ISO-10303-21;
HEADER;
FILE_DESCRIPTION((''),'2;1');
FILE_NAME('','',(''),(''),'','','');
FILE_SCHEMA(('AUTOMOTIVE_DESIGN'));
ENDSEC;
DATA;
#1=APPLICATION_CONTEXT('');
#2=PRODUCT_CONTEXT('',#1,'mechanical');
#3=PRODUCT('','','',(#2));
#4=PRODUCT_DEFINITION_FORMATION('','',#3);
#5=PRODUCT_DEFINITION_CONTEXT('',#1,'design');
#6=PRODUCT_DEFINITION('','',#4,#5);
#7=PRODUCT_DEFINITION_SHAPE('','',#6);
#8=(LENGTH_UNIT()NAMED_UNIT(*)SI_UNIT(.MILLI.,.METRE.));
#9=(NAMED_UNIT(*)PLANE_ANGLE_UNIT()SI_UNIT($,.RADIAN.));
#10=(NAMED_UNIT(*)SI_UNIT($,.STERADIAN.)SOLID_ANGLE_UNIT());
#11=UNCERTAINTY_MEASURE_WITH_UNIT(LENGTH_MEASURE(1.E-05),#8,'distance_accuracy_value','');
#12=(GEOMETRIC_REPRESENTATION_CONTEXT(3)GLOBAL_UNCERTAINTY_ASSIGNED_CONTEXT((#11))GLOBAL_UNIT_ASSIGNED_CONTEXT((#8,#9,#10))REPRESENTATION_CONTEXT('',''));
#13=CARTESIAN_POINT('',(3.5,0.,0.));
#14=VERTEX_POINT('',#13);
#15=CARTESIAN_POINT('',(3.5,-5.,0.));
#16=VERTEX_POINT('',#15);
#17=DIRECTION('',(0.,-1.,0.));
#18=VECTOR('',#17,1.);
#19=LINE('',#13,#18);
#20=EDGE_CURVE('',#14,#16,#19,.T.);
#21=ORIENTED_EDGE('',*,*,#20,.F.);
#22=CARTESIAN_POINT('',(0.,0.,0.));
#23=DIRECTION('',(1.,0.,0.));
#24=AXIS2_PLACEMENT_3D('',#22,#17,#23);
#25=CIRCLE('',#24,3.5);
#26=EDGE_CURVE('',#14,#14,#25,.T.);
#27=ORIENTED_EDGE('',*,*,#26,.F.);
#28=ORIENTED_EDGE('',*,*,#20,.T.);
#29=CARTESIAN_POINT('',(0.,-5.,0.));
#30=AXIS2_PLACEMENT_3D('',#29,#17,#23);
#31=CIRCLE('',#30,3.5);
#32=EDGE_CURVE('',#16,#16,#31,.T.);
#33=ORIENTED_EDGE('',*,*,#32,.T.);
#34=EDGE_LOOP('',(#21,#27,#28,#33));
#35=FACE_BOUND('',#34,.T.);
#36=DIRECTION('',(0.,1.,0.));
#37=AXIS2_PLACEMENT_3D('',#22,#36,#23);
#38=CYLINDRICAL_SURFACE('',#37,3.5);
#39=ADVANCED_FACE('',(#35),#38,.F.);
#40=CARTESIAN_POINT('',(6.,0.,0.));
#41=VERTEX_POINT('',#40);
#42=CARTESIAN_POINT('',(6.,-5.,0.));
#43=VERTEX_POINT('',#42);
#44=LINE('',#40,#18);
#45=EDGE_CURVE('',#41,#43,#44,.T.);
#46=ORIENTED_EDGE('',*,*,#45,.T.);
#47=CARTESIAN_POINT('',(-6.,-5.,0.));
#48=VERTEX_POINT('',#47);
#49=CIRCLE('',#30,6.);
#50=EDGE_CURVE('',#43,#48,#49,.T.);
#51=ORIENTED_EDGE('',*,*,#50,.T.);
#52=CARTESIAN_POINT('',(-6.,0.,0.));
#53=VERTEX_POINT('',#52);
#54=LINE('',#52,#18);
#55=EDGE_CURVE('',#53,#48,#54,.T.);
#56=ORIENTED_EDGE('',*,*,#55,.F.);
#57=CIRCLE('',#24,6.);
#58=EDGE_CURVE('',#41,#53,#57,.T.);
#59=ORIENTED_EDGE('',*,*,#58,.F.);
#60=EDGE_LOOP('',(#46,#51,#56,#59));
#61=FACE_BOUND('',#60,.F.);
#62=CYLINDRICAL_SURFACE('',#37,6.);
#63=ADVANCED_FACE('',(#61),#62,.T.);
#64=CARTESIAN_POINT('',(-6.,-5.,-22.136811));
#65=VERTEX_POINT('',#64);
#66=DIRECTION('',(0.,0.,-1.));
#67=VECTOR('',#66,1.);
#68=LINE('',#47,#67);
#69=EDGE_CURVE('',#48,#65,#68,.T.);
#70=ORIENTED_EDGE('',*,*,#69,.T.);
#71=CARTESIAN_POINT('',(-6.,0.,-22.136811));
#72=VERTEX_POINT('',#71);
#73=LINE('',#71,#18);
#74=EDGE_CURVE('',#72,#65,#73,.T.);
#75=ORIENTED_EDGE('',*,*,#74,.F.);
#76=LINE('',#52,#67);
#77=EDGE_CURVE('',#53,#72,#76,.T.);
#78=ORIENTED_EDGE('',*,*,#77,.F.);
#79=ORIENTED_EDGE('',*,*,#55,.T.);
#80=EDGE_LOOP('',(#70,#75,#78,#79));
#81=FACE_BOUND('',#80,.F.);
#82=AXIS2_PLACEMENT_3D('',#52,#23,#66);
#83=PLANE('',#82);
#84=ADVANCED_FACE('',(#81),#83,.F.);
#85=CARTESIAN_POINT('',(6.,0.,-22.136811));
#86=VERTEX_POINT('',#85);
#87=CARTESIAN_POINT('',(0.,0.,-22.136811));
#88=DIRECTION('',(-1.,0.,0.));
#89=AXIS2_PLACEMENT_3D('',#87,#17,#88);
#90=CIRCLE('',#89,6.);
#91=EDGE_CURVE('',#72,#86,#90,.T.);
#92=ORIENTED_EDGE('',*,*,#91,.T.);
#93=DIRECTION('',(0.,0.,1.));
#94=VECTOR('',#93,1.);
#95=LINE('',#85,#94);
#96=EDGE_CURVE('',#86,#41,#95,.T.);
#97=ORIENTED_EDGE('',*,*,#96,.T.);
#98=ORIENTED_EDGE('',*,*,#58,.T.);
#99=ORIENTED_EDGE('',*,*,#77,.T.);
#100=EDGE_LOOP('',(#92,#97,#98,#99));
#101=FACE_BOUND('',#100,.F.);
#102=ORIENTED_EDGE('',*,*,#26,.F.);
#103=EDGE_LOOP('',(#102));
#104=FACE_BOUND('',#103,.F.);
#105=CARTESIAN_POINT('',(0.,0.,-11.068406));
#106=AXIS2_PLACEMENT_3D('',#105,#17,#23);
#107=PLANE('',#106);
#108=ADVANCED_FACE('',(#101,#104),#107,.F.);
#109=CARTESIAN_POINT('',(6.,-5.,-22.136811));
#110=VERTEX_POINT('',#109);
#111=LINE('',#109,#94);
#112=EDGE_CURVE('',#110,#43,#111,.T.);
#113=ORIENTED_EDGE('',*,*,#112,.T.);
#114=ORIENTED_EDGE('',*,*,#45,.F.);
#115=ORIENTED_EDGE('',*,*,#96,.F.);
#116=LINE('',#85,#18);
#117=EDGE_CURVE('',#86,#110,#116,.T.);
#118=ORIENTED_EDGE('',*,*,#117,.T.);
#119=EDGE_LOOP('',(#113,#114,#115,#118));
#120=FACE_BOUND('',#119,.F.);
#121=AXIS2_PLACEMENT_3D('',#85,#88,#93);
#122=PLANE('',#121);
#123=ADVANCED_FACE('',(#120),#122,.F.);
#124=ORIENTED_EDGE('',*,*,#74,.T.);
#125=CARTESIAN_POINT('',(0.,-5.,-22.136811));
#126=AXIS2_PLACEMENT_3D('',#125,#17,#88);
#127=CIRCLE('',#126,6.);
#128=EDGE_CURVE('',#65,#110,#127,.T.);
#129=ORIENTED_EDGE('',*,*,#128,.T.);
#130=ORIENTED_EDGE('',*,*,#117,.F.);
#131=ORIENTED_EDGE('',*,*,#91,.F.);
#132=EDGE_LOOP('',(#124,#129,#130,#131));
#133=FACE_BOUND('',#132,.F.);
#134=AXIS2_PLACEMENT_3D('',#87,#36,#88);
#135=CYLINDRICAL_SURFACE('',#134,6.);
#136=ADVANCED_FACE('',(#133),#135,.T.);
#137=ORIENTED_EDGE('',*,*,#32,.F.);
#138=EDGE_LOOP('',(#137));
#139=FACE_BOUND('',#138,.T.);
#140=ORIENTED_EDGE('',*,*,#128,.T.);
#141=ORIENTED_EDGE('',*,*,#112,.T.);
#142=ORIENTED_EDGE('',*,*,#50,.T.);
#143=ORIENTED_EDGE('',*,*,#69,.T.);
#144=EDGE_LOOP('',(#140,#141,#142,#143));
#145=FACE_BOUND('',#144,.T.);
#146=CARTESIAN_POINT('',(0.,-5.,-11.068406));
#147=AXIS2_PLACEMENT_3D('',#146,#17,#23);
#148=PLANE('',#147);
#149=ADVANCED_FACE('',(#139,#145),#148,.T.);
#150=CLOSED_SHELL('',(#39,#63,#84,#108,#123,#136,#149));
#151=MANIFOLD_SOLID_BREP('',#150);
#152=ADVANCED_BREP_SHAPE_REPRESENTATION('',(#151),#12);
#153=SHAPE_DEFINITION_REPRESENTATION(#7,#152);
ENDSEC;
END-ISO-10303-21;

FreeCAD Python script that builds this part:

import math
import FreeCAD as App
import Part
import Sketcher

V = App.Vector
Q = App.Units.Quantity

doc = App.newDocument("Part")
params = doc.addObject("Spreadsheet::Sheet", "Params")
for row, (alias, value) in enumerate([
    ("sketch1_diameter", "7 mm"),
    ("sketch1_radius", "6 mm"),
    ("pad1_length", "5 mm"),
], start=1):
    params.set(f"A{row}", alias)
    params.set(f"B{row}", "=" + value)
    params.setAlias(f"B{row}", alias)

body = doc.addObject("PartDesign::Body", "Body")

sketch1 = doc.addObject("Sketcher::SketchObject", "Sketch")
body.addObject(sketch1)
sketch1.AttachmentSupport = (doc.XZ_Plane, [""])
sketch1.MapMode = "FlatFace"
sketch1.addGeometry([
    Part.LineSegment(V(6, -22.1, 0), V(6, 0, 0)),
    Part.ArcOfCircle(Part.Circle(V(0, 0, 0), V(0, 0, 1), 6), math.radians(0), math.radians(180)),
    Part.LineSegment(V(-6, 0, 0), V(-6, -22.1, 0)),
    Part.ArcOfCircle(Part.Circle(V(0, -22.1, 0), V(0, 0, 1), 6), math.radians(180), math.radians(360)),
    Part.Circle(V(0, 0, 0), V(0, 0, 1), 3.5),
], False)
sketch1.addConstraint([
    Sketcher.Constraint("Tangent", 0, 2, 1, 1),
    Sketcher.Constraint("Tangent", 1, 2, 2, 1),
    Sketcher.Constraint("Tangent", 2, 2, 3, 1),
    Sketcher.Constraint("Tangent", 3, 2, 0, 1),
    Sketcher.Constraint("Vertical", 0),
    Sketcher.Constraint("Vertical", 2),
    Sketcher.Constraint("Coincident", 1, 3, -1, 1),
    Sketcher.Constraint("Coincident", 4, 3, -1, 1),
    Sketcher.Constraint("Diameter", 4, Q("7 mm")),
    Sketcher.Constraint("Radius", 1, Q("6 mm")),
    Sketcher.Constraint("DistanceY", 0, 1, 0, 2, Q("22.136811 mm")),
])
sketch1.setExpression("Constraints[8]", "Params.sketch1_diameter")
sketch1.setExpression("Constraints[9]", "Params.sketch1_radius")
pad1 = doc.addObject("PartDesign::Pad", "Pad")
body.addObject(pad1)
pad1.Profile = sketch1
pad1.setExpression("Length", "Params.pad1_length")

doc.recompute()
